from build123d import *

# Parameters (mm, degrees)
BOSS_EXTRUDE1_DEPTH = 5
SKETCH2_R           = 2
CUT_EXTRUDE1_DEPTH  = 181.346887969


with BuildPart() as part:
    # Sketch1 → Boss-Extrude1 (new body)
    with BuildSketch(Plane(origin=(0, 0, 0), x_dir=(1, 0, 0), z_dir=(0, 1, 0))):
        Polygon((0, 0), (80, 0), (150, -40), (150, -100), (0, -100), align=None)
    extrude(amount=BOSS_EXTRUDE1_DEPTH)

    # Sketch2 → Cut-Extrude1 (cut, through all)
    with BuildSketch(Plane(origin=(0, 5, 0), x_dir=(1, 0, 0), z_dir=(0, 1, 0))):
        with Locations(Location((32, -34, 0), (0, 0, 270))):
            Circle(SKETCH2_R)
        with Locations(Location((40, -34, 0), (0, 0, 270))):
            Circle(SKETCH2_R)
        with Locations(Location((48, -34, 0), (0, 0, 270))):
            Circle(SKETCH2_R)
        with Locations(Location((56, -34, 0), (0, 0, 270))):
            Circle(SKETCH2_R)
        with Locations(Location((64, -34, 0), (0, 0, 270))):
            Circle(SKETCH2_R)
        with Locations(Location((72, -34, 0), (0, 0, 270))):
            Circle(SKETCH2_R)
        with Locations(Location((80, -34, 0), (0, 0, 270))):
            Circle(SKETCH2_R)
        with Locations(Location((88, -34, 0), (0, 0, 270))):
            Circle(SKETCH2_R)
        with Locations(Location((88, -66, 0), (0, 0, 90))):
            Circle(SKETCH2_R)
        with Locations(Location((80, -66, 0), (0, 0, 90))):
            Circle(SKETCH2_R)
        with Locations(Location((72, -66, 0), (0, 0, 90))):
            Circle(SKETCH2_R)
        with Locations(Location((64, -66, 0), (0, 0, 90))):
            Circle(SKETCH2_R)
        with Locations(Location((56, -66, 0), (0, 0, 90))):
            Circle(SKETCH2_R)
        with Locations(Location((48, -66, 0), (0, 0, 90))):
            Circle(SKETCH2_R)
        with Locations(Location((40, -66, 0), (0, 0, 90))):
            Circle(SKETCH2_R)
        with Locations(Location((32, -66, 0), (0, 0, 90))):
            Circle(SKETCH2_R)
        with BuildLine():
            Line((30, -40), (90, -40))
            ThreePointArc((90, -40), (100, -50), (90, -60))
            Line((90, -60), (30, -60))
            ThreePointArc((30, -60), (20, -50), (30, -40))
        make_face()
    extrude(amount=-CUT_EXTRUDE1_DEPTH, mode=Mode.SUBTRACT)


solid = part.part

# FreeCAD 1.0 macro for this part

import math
import FreeCAD as App
import Part
import Sketcher


def add_polygon(sketch, points):
    """Adds a closed chain of lines whose ends are joined by coincident constraints."""
    first, n = sketch.GeometryCount, len(points)
    for a, b in zip(points, points[1:] + points[:1]):
        sketch.addGeometry(Part.LineSegment(App.Vector(*a, 0), App.Vector(*b, 0)), False)
    for i in range(n):
        sketch.addConstraint(Sketcher.Constraint("Coincident", first + i, 2, first + (i + 1) % n, 1))

doc = App.newDocument("Part")
body = doc.addObject("PartDesign::Body", "Body")

# Sketch on XZ plane
sketch1 = doc.addObject("Sketcher::SketchObject", "Sketch")
body.addObject(sketch1)
sketch1.AttachmentSupport = (doc.XZ_Plane, [""])
sketch1.MapMode = "FlatFace"
add_polygon(sketch1, [(80, 0), (0, 0), (0, 100), (150, 100), (150, 40)])  # lines 0-4
sketch1.addConstraint(Sketcher.Constraint("Horizontal", 0))
sketch1.addConstraint(Sketcher.Constraint("Vertical", 1))
sketch1.addConstraint(Sketcher.Constraint("Horizontal", 2))
sketch1.addConstraint(Sketcher.Constraint("Vertical", 3))
sketch1.addConstraint(Sketcher.Constraint("Coincident", 0, 2, -1, 1))
sketch1.addConstraint(Sketcher.Constraint("DistanceX", 0, 2, 0, 1, 80.0))
sketch1.addConstraint(Sketcher.Constraint("DistanceX", 2, 1, 2, 2, 150.0))
sketch1.addConstraint(Sketcher.Constraint("DistanceY", 1, 1, 1, 2, 100.0))
sketch1.addConstraint(Sketcher.Constraint("DistanceY", 3, 2, 3, 1, 60.0))
pad1 = doc.addObject("PartDesign::Pad", "Pad")
body.addObject(pad1)
pad1.Profile = sketch1
pad1.Length = 5
pad1.Reversed = True

# Sketch on XZ plane
sketch2 = doc.addObject("Sketcher::SketchObject", "Sketch001")
body.addObject(sketch2)
sketch2.AttachmentSupport = (doc.XZ_Plane, [""])
sketch2.MapMode = "FlatFace"
sketch2.AttachmentOffset = App.Placement(App.Vector(0, 0, -5), App.Rotation())
sketch2.addGeometry(Part.Circle(App.Vector(32, 34, 0), App.Vector(0, 0, 1), 2), False)
sketch2.addGeometry(Part.Circle(App.Vector(40, 34, 0), App.Vector(0, 0, 1), 2), False)
sketch2.addGeometry(Part.Circle(App.Vector(48, 34, 0), App.Vector(0, 0, 1), 2), False)
sketch2.addGeometry(Part.Circle(App.Vector(56, 34, 0), App.Vector(0, 0, 1), 2), False)
sketch2.addGeometry(Part.Circle(App.Vector(64, 34, 0), App.Vector(0, 0, 1), 2), False)
sketch2.addGeometry(Part.Circle(App.Vector(72, 34, 0), App.Vector(0, 0, 1), 2), False)
sketch2.addGeometry(Part.Circle(App.Vector(80, 34, 0), App.Vector(0, 0, 1), 2), False)
sketch2.addGeometry(Part.Circle(App.Vector(88, 34, 0), App.Vector(0, 0, 1), 2), False)
sketch2.addGeometry(Part.Circle(App.Vector(88, 66, 0), App.Vector(0, 0, 1), 2), False)
sketch2.addGeometry(Part.Circle(App.Vector(80, 66, 0), App.Vector(0, 0, 1), 2), False)
sketch2.addGeometry(Part.Circle(App.Vector(72, 66, 0), App.Vector(0, 0, 1), 2), False)
sketch2.addGeometry(Part.Circle(App.Vector(64, 66, 0), App.Vector(0, 0, 1), 2), False)
sketch2.addGeometry(Part.Circle(App.Vector(56, 66, 0), App.Vector(0, 0, 1), 2), False)
sketch2.addGeometry(Part.Circle(App.Vector(48, 66, 0), App.Vector(0, 0, 1), 2), False)
sketch2.addGeometry(Part.Circle(App.Vector(40, 66, 0), App.Vector(0, 0, 1), 2), False)
sketch2.addGeometry(Part.Circle(App.Vector(32, 66, 0), App.Vector(0, 0, 1), 2), False)
sketch2.addGeometry(Part.LineSegment(App.Vector(90, 40, 0), App.Vector(30, 40, 0)), False)
sketch2.addGeometry(Part.ArcOfCircle(Part.Circle(App.Vector(30, 50, 0), App.Vector(0, 0, 1), 10), math.radians(90), math.radians(270)), False)
sketch2.addGeometry(Part.LineSegment(App.Vector(30, 60, 0), App.Vector(90, 60, 0)), False)
sketch2.addGeometry(Part.ArcOfCircle(Part.Circle(App.Vector(90, 50, 0), App.Vector(0, 0, 1), 10), math.radians(-90), math.radians(90)), False)
sketch2.addConstraint(Sketcher.Constraint("Tangent", 16, 2, 17, 2))
sketch2.addConstraint(Sketcher.Constraint("Tangent", 17, 1, 18, 1))
sketch2.addConstraint(Sketcher.Constraint("Tangent", 18, 2, 19, 2))
sketch2.addConstraint(Sketcher.Constraint("Tangent", 19, 1, 16, 1))
sketch2.addConstraint(Sketcher.Constraint("Horizontal", 16))
sketch2.addConstraint(Sketcher.Constraint("Horizontal", 18))
sketch2.addConstraint(Sketcher.Constraint("Equal", 0, 1))
sketch2.addConstraint(Sketcher.Constraint("Equal", 1, 2))
sketch2.addConstraint(Sketcher.Constraint("Equal", 2, 3))
sketch2.addConstraint(Sketcher.Constraint("Equal", 3, 4))
sketch2.addConstraint(Sketcher.Constraint("Equal", 4, 5))
sketch2.addConstraint(Sketcher.Constraint("Equal", 5, 6))
sketch2.addConstraint(Sketcher.Constraint("Equal", 6, 7))
sketch2.addConstraint(Sketcher.Constraint("Equal", 7, 8))
sketch2.addConstraint(Sketcher.Constraint("Equal", 8, 9))
sketch2.addConstraint(Sketcher.Constraint("Equal", 9, 10))
sketch2.addConstraint(Sketcher.Constraint("Equal", 10, 11))
sketch2.addConstraint(Sketcher.Constraint("Equal", 11, 12))
sketch2.addConstraint(Sketcher.Constraint("Equal", 12, 13))
sketch2.addConstraint(Sketcher.Constraint("Equal", 13, 14))
sketch2.addConstraint(Sketcher.Constraint("Equal", 14, 15))
sketch2.addConstraint(Sketcher.Constraint("Horizontal", 0, 3, 1, 3))
sketch2.addConstraint(Sketcher.Constraint("Horizontal", 1, 3, 2, 3))
sketch2.addConstraint(Sketcher.Constraint("Horizontal", 2, 3, 3, 3))
sketch2.addConstraint(Sketcher.Constraint("Horizontal", 3, 3, 4, 3))
sketch2.addConstraint(Sketcher.Constraint("Horizontal", 4, 3, 5, 3))
sketch2.addConstraint(Sketcher.Constraint("Horizontal", 5, 3, 6, 3))
sketch2.addConstraint(Sketcher.Constraint("Horizontal", 6, 3, 7, 3))
sketch2.addConstraint(Sketcher.Constraint("Horizontal", 8, 3, 9, 3))
sketch2.addConstraint(Sketcher.Constraint("Horizontal", 9, 3, 10, 3))
sketch2.addConstraint(Sketcher.Constraint("Horizontal", 10, 3, 11, 3))
sketch2.addConstraint(Sketcher.Constraint("Horizontal", 11, 3, 12, 3))
sketch2.addConstraint(Sketcher.Constraint("Horizontal", 12, 3, 13, 3))
sketch2.addConstraint(Sketcher.Constraint("Horizontal", 13, 3, 14, 3))
sketch2.addConstraint(Sketcher.Constraint("Horizontal", 14, 3, 15, 3))
sketch2.addConstraint(Sketcher.Constraint("Vertical", 7, 3, 8, 3))
sketch2.addConstraint(Sketcher.Constraint("Vertical", 6, 3, 9, 3))
sketch2.addConstraint(Sketcher.Constraint("Vertical", 5, 3, 10, 3))
sketch2.addConstraint(Sketcher.Constraint("Vertical", 4, 3, 11, 3))
sketch2.addConstraint(Sketcher.Constraint("Vertical", 3, 3, 12, 3))
sketch2.addConstraint(Sketcher.Constraint("Vertical", 2, 3, 13, 3))
sketch2.addConstraint(Sketcher.Constraint("Vertical", 1, 3, 14, 3))
sketch2.addConstraint(Sketcher.Constraint("Vertical", 0, 3, 15, 3))
sketch2.addConstraint(Sketcher.Constraint("Diameter", 0, 4.0))
sketch2.addConstraint(Sketcher.Constraint("Radius", 17, 10.0))
sketch2.addConstraint(Sketcher.Constraint("DistanceX", 16, 2, 16, 1, 60.0))
sketch2.addConstraint(Sketcher.Constraint("DistanceX", -1, 1, 0, 3, 32.0))
sketch2.addConstraint(Sketcher.Constraint("DistanceY", -1, 1, 0, 3, 34.0))
sketch2.addConstraint(Sketcher.Constraint("DistanceX", -1, 1, 1, 3, 40.0))
sketch2.addConstraint(Sketcher.Constraint("DistanceX", -1, 1, 2, 3, 48.0))
sketch2.addConstraint(Sketcher.Constraint("DistanceX", -1, 1, 3, 3, 56.0))
sketch2.addConstraint(Sketcher.Constraint("DistanceX", -1, 1, 4, 3, 64.0))
sketch2.addConstraint(Sketcher.Constraint("DistanceX", -1, 1, 5, 3, 72.0))
sketch2.addConstraint(Sketcher.Constraint("DistanceX", -1, 1, 6, 3, 80.0))
sketch2.addConstraint(Sketcher.Constraint("DistanceX", -1, 1, 7, 3, 88.0))
sketch2.addConstraint(Sketcher.Constraint("DistanceY", -1, 1, 8, 3, 66.0))
sketch2.addConstraint(Sketcher.Constraint("DistanceX", -1, 1, 17, 3, 30.0))
sketch2.addConstraint(Sketcher.Constraint("DistanceY", -1, 1, 17, 3, 50.0))
pocket1 = doc.addObject("PartDesign::Pocket", "Pocket")
body.addObject(pocket1)
pocket1.Profile = sketch2
pocket1.Type = "ThroughAll"
pocket1.Reversed = True

doc.recompute()
